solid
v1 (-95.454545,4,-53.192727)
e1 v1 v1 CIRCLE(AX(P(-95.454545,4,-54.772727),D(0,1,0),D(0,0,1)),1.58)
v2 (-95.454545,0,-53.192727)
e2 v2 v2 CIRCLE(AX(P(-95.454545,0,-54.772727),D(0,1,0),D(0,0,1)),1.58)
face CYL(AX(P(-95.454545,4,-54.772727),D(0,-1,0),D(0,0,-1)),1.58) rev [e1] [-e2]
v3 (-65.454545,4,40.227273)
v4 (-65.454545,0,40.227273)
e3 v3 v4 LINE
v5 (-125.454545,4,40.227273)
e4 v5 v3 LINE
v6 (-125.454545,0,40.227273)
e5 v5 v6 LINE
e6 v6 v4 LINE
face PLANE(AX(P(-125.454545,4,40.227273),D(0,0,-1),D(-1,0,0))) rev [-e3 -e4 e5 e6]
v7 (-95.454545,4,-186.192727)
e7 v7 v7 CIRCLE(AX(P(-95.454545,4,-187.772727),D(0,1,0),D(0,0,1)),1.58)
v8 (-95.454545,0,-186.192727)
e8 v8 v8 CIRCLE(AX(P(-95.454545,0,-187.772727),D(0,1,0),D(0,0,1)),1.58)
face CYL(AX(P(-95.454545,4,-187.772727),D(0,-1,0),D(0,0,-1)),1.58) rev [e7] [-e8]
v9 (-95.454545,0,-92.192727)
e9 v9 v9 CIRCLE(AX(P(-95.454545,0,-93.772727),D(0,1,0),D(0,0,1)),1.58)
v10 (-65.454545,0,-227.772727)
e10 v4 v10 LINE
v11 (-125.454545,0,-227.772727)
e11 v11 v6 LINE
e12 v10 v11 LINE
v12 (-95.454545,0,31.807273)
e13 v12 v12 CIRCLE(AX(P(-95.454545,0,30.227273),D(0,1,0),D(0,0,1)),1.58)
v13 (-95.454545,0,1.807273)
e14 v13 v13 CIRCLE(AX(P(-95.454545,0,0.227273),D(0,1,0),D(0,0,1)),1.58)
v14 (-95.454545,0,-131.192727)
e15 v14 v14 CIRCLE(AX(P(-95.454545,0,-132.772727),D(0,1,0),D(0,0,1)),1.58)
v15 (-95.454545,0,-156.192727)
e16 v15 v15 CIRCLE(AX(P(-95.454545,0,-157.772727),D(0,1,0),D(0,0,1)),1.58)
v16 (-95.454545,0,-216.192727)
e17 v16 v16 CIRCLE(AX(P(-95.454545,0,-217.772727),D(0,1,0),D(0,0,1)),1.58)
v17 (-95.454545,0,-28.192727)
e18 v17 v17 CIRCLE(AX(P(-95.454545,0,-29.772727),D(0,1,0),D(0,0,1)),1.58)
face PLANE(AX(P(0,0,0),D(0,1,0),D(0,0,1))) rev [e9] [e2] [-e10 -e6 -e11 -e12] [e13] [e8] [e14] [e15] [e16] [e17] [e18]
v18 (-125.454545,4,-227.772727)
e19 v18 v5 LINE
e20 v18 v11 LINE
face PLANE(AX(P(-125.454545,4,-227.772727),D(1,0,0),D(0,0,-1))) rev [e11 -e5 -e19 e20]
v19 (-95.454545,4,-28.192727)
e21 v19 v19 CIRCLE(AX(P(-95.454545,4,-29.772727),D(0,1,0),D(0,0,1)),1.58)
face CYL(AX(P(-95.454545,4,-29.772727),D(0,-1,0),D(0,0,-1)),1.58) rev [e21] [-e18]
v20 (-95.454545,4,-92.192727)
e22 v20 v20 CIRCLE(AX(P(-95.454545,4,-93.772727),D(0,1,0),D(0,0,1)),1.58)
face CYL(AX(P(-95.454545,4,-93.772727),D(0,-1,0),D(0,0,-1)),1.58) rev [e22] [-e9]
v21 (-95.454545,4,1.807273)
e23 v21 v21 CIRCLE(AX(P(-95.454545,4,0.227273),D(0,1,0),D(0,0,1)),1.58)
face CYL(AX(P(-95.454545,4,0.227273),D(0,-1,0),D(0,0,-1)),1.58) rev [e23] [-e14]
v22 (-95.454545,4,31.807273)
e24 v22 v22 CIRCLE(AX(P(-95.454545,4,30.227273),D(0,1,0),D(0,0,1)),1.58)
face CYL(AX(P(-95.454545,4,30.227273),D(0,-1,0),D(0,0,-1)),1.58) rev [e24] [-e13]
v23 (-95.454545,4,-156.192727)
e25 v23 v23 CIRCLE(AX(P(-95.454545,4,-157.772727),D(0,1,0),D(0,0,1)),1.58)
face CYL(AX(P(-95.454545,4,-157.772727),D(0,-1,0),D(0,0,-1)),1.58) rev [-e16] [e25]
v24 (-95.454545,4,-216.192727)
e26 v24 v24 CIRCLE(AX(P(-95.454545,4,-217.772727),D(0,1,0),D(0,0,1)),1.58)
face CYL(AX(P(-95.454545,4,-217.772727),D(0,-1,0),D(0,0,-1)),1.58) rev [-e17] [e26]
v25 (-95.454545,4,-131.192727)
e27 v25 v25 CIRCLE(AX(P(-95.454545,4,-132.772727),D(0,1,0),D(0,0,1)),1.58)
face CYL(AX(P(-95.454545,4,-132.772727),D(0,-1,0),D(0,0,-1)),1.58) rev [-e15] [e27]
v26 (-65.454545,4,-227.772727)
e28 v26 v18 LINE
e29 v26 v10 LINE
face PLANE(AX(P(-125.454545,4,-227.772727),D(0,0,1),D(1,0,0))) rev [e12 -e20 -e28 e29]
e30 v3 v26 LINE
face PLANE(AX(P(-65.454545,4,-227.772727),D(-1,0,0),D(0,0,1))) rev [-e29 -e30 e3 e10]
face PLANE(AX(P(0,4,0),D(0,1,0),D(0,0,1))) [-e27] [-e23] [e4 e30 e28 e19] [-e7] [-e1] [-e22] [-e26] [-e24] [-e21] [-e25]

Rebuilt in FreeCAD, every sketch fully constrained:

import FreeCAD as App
import Part
import Sketcher
from FreeCAD import Vector
Q = App.Units.Quantity


def add_polygon(sketch, points):
    """Adds a closed chain of lines whose ends are joined by coincident constraints."""
    first, n = sketch.GeometryCount, len(points)
    for a, b in zip(points, points[1:] + points[:1]):
        sketch.addGeometry(Part.LineSegment(App.Vector(*a, 0), App.Vector(*b, 0)), False)
    for i in range(n):
        sketch.addConstraint(Sketcher.Constraint("Coincident", first + i, 2, first + (i + 1) % n, 1))

doc = App.newDocument("Part")
body = doc.addObject("PartDesign::Body", "Body")

# Sketch on XZ plane
sketch1 = doc.addObject("Sketcher::SketchObject", "Sketch")
body.addObject(sketch1)
sketch1.AttachmentSupport = (doc.XZ_Plane, [""])
sketch1.MapMode = "FlatFace"
add_polygon(sketch1, [(-125.5, -227.8), (-125.5, 40.2), (-65.5, 40.2), (-65.5, -227.8)])  # lines 0-3
sketch1.addGeometry(Part.Circle(Vector(-95.5, 30.2, 0), Vector(0, 0, 1), 1.6), False)  # 4
sketch1.addGeometry(Part.Circle(Vector(-95.5, 0.2, 0), Vector(0, 0, 1), 1.6), False)  # 5
sketch1.addGeometry(Part.Circle(Vector(-95.5, -29.8, 0), Vector(0, 0, 1), 1.6), False)  # 6
sketch1.addGeometry(Part.Circle(Vector(-95.5, -54.8, 0), Vector(0, 0, 1), 1.6), False)  # 7
sketch1.addGeometry(Part.Circle(Vector(-95.5, -93.8, 0), Vector(0, 0, 1), 1.6), False)  # 8
sketch1.addGeometry(Part.Circle(Vector(-95.5, -132.8, 0), Vector(0, 0, 1), 1.6), False)  # 9
sketch1.addGeometry(Part.Circle(Vector(-95.5, -157.8, 0), Vector(0, 0, 1), 1.6), False)  # 10
sketch1.addGeometry(Part.Circle(Vector(-95.5, -187.8, 0), Vector(0, 0, 1), 1.6), False)  # 11
sketch1.addGeometry(Part.Circle(Vector(-95.5, -217.8, 0), Vector(0, 0, 1), 1.6), False)  # 12
sketch1.addConstraint([
    Sketcher.Constraint("Vertical", 0),
    Sketcher.Constraint("Horizontal", 1),
    Sketcher.Constraint("Vertical", 2),
    Sketcher.Constraint("Horizontal", 3),
    Sketcher.Constraint("Equal", 4, 5),
    Sketcher.Constraint("Equal", 5, 6),
    Sketcher.Constraint("Equal", 6, 7),
    Sketcher.Constraint("Equal", 7, 8),
    Sketcher.Constraint("Equal", 8, 9),
    Sketcher.Constraint("Equal", 9, 10),
    Sketcher.Constraint("Equal", 10, 11),
    Sketcher.Constraint("Equal", 11, 12),
    Sketcher.Constraint("Vertical", 4, 3, 5, 3),
    Sketcher.Constraint("Vertical", 5, 3, 6, 3),
    Sketcher.Constraint("Vertical", 6, 3, 7, 3),
    Sketcher.Constraint("Vertical", 7, 3, 8, 3),
    Sketcher.Constraint("Vertical", 8, 3, 9, 3),
    Sketcher.Constraint("Vertical", 9, 3, 10, 3),
    Sketcher.Constraint("Vertical", 10, 3, 11, 3),
    Sketcher.Constraint("Vertical", 11, 3, 12, 3),
    Sketcher.Constraint("Diameter", 4, Q("3.16 mm")),
    Sketcher.Constraint("DistanceX", 1, 1, 1, 2, Q("60 mm")),
    Sketcher.Constraint("DistanceY", 0, 1, 0, 2, Q("268 mm")),
    Sketcher.Constraint("DistanceY", 5, 3, 4, 3, Q("30 mm")),
    Sketcher.Constraint("DistanceY", 6, 3, 5, 3, Q("30 mm")),
    Sketcher.Constraint("DistanceY", 7, 3, 6, 3, Q("25 mm")),
    Sketcher.Constraint("DistanceY", 8, 3, 7, 3, Q("39 mm")),
    Sketcher.Constraint("DistanceY", 9, 3, 8, 3, Q("39 mm")),
    Sketcher.Constraint("DistanceY", 10, 3, 9, 3, Q("25 mm")),
    Sketcher.Constraint("DistanceY", 11, 3, 10, 3, Q("30 mm")),
    Sketcher.Constraint("DistanceY", 12, 3, 11, 3, Q("30 mm")),
    Sketcher.Constraint("DistanceX", 0, 2, 4, 3, Q("30 mm")),
    Sketcher.Constraint("DistanceY", 4, 3, 0, 2, Q("10 mm")),
    Sketcher.Constraint("DistanceX", 4, 3, -1, 1, Q("95.454545 mm")),
    Sketcher.Constraint("DistanceY", -1, 1, 4, 3, Q("30.227273 mm")),
])
pad1 = doc.addObject("PartDesign::Pad", "Pad")
body.addObject(pad1)
pad1.Profile = sketch1
pad1.Length = 4
pad1.Reversed = True

doc.recompute()
